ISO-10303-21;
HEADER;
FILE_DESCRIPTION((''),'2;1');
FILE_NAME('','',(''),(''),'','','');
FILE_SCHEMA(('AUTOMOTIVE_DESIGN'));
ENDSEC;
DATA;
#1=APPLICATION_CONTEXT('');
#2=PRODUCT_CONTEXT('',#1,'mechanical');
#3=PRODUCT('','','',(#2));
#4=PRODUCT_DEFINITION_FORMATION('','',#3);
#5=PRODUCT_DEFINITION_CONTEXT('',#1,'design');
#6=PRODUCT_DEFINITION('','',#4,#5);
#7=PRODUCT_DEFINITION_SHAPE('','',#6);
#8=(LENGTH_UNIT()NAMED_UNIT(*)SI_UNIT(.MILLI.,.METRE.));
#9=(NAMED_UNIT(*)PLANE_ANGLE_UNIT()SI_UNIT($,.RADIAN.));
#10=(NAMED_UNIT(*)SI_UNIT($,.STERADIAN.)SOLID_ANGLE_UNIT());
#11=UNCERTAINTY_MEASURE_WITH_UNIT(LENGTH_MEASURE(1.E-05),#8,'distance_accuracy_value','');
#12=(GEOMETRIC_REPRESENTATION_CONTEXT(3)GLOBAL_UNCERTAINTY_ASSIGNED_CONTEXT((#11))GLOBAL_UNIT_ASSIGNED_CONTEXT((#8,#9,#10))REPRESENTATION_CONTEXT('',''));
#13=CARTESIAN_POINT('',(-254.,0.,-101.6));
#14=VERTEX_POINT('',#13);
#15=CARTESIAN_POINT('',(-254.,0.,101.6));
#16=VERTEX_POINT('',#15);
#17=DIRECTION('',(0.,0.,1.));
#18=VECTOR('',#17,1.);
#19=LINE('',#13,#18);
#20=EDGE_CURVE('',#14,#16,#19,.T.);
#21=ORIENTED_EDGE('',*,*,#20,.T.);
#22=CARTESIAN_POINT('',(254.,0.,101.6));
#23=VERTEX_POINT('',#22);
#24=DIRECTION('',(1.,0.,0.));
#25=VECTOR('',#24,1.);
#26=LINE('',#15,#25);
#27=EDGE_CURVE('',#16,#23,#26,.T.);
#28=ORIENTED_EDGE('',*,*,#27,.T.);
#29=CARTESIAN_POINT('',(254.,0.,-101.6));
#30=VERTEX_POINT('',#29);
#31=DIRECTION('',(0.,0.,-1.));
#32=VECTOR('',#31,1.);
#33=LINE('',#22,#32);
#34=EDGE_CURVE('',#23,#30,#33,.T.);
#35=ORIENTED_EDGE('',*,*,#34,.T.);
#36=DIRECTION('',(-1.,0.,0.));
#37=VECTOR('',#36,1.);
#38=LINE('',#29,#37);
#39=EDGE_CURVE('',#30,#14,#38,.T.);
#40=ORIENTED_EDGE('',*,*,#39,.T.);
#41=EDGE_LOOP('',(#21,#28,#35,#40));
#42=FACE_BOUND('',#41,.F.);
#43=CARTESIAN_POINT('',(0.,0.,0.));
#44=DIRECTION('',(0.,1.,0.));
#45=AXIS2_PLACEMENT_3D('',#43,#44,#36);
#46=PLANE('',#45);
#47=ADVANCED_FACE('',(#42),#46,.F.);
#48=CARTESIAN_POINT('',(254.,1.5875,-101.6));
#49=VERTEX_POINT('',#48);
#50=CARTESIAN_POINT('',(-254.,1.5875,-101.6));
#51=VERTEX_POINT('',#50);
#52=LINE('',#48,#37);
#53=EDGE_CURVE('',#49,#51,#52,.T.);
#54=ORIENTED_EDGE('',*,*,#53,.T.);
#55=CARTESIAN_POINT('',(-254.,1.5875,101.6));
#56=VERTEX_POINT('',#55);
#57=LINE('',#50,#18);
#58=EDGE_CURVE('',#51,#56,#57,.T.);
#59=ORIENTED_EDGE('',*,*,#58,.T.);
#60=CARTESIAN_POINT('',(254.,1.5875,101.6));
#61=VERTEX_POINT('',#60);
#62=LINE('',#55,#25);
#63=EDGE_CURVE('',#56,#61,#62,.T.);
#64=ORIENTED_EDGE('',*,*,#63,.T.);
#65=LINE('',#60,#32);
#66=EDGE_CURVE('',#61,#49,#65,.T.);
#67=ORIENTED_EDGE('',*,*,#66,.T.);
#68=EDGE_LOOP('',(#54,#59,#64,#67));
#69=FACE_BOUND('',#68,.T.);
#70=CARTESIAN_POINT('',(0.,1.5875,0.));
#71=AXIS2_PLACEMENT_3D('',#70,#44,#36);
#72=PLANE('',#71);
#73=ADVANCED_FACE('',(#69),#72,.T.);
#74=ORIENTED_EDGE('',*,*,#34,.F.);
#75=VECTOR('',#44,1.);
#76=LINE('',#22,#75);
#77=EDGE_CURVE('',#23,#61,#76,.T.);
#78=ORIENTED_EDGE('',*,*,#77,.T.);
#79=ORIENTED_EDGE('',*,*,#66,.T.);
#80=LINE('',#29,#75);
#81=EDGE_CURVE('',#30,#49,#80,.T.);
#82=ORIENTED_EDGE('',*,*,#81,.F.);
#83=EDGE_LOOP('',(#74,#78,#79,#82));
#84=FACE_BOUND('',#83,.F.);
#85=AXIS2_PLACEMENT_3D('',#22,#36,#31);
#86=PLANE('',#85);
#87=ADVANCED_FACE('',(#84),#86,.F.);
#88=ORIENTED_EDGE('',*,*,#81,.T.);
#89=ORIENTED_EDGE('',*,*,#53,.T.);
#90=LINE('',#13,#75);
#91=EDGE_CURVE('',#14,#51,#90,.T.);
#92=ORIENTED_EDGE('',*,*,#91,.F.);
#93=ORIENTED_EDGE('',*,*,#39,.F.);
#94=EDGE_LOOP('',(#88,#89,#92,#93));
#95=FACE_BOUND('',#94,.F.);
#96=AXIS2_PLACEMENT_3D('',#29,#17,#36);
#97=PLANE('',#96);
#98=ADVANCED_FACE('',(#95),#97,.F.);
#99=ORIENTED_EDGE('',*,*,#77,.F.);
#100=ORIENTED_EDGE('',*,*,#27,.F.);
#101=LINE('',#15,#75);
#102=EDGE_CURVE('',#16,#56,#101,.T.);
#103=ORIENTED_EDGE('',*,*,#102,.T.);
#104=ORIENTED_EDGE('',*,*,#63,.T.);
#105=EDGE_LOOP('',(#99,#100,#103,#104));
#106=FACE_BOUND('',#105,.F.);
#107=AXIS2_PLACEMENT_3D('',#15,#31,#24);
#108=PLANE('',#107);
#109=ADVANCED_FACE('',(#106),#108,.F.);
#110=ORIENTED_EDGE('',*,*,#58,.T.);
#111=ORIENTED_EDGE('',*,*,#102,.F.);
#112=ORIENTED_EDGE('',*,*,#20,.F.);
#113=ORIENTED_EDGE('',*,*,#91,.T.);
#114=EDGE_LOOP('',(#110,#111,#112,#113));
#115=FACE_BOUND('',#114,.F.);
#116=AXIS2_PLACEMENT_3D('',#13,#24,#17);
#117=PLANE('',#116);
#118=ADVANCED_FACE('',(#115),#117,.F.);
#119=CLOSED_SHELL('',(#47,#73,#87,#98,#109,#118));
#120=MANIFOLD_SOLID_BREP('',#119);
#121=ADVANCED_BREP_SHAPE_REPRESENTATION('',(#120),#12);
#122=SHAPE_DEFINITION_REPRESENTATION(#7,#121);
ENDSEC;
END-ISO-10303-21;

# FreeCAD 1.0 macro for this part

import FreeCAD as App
import Part
import Sketcher
Q = App.Units.Quantity

doc = App.newDocument("Part")
body = doc.addObject("PartDesign::Body", "Body")

sketch1 = body.newObject("Sketcher::SketchObject", "Sketch")
sketch1.AttachmentSupport = (doc.getObject("XZ_Plane"), [""])
sketch1.MapMode = "FlatFace"
sketch1.addGeometry([
    Part.LineSegment(App.Vector(-254, -101.6, 0), App.Vector(-254, 101.6, 0)),
    Part.LineSegment(App.Vector(-254, 101.6, 0), App.Vector(254, 101.6, 0)),
    Part.LineSegment(App.Vector(254, 101.6, 0), App.Vector(254, -101.6, 0)),
    Part.LineSegment(App.Vector(254, -101.6, 0), App.Vector(-254, -101.6, 0)),
], False)
sketch1.addConstraint([
    Sketcher.Constraint("Coincident", 0, 2, 1, 1),
    Sketcher.Constraint("Coincident", 1, 2, 2, 1),
    Sketcher.Constraint("Coincident", 2, 2, 3, 1),
    Sketcher.Constraint("Coincident", 3, 2, 0, 1),
    Sketcher.Constraint("Vertical", 0),
    Sketcher.Constraint("Horizontal", 1),
    Sketcher.Constraint("Vertical", 2),
    Sketcher.Constraint("Horizontal", 3),
    Sketcher.Constraint("Symmetric", 0, 2, 2, 2, -1, 1),
    Sketcher.Constraint("DistanceX", 1, 1, 1, 2, Q("20 in")),
    Sketcher.Constraint("DistanceY", 0, 1, 0, 2, Q("8 in")),
])
pad1 = body.newObject("PartDesign::Pad", "Pad")
pad1.Profile = sketch1
pad1.Length = Q("0.0625 in")
pad1.Reversed = True

doc.recompute()
